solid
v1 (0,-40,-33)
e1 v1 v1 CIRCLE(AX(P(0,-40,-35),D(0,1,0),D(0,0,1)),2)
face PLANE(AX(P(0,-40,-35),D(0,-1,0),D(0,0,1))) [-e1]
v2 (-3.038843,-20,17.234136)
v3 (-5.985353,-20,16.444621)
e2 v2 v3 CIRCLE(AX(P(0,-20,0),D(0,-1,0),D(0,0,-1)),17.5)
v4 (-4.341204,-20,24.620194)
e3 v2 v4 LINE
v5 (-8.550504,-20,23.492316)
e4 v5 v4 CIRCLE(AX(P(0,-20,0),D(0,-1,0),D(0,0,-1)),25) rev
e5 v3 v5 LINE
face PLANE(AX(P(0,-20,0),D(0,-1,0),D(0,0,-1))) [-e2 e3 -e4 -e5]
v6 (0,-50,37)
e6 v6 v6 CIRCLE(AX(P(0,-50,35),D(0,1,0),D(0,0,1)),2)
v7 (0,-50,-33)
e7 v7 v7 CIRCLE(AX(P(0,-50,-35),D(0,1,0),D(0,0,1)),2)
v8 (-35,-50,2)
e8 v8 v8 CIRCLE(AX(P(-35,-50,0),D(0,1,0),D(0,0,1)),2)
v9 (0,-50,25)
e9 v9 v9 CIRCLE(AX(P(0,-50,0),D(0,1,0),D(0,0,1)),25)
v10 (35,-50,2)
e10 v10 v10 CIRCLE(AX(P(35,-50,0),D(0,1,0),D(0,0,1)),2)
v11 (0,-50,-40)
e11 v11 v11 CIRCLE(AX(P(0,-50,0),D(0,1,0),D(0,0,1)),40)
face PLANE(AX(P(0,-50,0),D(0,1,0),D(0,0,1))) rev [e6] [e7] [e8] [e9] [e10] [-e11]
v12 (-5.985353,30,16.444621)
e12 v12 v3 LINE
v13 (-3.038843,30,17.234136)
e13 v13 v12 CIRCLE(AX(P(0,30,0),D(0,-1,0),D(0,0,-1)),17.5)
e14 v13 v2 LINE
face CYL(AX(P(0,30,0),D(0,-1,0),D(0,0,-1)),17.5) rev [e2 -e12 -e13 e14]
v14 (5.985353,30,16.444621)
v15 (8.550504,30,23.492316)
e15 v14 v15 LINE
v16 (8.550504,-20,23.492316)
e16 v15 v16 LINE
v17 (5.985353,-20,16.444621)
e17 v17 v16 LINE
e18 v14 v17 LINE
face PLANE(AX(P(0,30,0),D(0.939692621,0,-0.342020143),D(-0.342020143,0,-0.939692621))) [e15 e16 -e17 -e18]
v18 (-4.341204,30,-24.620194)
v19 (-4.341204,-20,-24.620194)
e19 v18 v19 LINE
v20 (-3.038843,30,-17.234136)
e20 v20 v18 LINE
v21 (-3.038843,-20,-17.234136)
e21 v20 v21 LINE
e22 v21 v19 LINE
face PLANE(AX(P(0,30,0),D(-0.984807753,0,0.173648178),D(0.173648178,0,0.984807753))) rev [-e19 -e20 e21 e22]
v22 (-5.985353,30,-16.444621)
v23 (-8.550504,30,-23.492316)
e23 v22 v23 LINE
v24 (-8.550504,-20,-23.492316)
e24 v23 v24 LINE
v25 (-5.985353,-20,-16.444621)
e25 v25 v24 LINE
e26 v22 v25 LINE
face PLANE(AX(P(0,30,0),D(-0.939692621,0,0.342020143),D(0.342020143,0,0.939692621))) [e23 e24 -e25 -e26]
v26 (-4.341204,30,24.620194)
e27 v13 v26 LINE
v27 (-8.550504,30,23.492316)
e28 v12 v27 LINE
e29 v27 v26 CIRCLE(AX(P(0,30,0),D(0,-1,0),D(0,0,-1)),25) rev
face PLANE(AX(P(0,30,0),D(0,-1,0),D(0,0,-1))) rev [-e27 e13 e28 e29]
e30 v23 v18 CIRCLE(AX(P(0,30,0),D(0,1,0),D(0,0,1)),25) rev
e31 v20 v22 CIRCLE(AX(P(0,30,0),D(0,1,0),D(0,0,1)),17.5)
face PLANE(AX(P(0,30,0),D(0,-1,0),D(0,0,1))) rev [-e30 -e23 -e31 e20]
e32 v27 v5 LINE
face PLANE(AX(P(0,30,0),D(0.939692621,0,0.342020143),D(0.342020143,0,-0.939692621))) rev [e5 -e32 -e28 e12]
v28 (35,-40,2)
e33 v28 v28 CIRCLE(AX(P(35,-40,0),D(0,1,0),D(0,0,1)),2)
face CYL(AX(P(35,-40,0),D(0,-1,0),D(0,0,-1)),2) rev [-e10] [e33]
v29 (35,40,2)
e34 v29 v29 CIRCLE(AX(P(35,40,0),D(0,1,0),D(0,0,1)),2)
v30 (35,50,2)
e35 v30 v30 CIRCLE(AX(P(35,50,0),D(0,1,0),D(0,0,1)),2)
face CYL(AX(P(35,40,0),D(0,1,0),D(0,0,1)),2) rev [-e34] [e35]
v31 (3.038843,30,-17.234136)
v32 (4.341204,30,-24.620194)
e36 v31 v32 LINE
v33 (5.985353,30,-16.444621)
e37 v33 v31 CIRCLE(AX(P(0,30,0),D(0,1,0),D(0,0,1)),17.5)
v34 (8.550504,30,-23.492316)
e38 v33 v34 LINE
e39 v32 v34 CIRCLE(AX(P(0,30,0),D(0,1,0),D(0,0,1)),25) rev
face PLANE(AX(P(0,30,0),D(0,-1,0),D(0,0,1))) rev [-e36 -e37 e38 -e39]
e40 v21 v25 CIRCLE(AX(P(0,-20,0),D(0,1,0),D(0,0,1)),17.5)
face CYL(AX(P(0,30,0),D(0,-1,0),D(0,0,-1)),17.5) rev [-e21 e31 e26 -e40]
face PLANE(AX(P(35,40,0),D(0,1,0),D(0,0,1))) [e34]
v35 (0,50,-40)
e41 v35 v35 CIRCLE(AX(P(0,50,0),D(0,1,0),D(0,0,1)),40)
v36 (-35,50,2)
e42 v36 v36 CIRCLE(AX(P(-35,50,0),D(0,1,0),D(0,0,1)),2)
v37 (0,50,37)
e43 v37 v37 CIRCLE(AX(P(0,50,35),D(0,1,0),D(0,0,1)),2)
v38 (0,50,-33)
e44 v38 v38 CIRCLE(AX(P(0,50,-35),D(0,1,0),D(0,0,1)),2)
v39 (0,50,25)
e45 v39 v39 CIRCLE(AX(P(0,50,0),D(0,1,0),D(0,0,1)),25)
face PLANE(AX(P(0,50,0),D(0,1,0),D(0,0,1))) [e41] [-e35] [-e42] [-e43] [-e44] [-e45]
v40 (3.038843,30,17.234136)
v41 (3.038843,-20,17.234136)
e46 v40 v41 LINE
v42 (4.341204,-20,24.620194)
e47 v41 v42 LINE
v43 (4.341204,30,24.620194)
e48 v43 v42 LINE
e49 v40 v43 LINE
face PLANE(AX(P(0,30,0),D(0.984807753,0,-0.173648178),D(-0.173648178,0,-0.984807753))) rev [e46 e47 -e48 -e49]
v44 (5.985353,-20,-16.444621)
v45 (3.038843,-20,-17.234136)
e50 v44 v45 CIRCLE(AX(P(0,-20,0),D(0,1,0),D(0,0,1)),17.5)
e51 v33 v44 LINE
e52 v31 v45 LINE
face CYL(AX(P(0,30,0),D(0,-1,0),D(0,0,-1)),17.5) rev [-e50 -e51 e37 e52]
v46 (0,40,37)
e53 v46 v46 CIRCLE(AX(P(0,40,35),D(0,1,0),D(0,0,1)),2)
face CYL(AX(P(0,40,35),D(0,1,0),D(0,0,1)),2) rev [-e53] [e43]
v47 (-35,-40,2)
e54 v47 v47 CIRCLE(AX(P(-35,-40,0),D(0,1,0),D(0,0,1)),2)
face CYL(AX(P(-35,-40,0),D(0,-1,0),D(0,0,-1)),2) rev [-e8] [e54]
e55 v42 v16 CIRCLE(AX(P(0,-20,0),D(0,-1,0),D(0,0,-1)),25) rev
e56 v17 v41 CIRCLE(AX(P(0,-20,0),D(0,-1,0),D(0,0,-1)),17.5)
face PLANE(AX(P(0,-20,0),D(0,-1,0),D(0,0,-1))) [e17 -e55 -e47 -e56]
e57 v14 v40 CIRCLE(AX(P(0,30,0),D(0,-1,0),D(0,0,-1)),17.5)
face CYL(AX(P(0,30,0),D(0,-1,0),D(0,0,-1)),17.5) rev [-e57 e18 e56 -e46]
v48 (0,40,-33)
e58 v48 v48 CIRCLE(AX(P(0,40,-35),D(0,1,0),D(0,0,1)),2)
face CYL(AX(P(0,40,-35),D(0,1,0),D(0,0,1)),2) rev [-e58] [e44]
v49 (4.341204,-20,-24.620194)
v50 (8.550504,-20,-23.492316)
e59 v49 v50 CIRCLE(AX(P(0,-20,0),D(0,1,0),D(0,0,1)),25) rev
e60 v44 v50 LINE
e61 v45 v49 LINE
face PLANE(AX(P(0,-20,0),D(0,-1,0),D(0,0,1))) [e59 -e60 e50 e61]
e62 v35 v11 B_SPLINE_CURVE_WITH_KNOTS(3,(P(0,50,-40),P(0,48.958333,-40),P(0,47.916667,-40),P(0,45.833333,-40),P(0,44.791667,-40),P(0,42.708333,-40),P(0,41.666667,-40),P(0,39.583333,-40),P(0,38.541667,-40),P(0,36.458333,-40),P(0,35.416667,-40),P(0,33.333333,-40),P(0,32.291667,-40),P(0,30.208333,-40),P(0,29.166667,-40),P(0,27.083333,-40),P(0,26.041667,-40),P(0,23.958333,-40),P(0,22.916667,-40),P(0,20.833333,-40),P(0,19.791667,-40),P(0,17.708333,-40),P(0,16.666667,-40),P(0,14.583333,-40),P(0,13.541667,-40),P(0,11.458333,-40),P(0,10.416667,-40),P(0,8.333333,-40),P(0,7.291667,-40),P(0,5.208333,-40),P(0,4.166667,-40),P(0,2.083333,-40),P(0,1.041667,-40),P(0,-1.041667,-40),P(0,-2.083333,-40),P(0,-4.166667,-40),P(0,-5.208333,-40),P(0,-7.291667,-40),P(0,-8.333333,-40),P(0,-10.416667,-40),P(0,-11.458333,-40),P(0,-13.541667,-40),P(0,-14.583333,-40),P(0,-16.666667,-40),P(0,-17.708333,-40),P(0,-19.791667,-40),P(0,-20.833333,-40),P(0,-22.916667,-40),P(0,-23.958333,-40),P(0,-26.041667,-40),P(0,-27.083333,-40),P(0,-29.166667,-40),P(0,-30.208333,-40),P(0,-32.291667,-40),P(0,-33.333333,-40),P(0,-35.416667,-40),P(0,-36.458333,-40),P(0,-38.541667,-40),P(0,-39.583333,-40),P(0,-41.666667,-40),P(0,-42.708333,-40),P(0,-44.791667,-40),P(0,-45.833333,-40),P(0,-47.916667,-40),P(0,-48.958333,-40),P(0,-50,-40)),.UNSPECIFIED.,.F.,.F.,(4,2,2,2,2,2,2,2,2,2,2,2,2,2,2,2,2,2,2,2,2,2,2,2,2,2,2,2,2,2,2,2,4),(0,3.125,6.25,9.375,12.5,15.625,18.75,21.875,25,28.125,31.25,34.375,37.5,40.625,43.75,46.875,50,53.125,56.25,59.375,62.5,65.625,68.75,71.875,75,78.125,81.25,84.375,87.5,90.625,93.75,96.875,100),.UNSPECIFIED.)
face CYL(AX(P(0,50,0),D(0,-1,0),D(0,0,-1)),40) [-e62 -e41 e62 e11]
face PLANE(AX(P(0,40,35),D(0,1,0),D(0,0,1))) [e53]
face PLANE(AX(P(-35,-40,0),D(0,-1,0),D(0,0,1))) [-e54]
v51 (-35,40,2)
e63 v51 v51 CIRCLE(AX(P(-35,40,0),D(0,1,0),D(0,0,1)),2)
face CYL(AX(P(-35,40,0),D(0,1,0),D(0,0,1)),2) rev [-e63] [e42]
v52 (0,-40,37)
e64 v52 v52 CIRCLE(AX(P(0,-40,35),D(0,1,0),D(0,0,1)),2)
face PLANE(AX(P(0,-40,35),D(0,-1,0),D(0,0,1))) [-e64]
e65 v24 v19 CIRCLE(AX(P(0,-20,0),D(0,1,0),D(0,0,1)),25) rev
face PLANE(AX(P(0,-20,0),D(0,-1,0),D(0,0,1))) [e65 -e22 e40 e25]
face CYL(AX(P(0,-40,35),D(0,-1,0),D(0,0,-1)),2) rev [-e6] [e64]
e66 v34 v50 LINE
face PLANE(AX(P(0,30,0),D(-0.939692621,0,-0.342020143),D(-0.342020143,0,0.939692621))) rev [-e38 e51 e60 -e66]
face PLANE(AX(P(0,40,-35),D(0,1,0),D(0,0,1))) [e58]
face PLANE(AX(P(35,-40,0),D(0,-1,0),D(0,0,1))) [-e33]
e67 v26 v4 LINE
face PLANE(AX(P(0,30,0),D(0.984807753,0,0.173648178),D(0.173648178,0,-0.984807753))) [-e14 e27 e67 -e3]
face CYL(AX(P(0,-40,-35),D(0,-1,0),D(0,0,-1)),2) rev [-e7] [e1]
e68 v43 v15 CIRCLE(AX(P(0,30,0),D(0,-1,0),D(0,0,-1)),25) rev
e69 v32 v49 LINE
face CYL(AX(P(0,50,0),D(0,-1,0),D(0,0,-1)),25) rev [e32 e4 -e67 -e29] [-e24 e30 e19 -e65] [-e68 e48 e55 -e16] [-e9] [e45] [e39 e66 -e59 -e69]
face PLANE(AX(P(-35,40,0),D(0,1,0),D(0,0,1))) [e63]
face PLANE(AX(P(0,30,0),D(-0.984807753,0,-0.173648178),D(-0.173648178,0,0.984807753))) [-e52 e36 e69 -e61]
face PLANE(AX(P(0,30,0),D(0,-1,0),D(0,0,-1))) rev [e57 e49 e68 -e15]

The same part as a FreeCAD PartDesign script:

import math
import FreeCAD as App
import Part
import Sketcher

V = App.Vector
Q = App.Units.Quantity

doc = App.newDocument("Part")
body = doc.addObject("PartDesign::Body", "Body")

sketch1 = doc.addObject("Sketcher::SketchObject", "Sketch")
body.addObject(sketch1)
sketch1.AttachmentSupport = (doc.XZ_Plane, [""])
sketch1.MapMode = "FlatFace"
sketch1.addGeometry([
    Part.Circle(V(0, 0, 0), V(0, 0, 1), 40),
    Part.Circle(V(0, 0, 0), V(0, 0, 1), 25),
], False)
sketch1.addConstraint([
    Sketcher.Constraint("Coincident", 0, 3, -1, 1),
    Sketcher.Constraint("Coincident", 1, 3, -1, 1),
    Sketcher.Constraint("Diameter", 0, Q("80 mm")),
    Sketcher.Constraint("Diameter", 1, Q("50 mm")),
])
pad1 = doc.addObject("PartDesign::Pad", "Pad")
body.addObject(pad1)
pad1.Profile = sketch1
pad1.Length = 100
pad1.Midplane = True

sketch2 = doc.addObject("Sketcher::SketchObject", "Sketch001")
body.addObject(sketch2)
sketch2.AttachmentSupport = (doc.XZ_Plane, [""])
sketch2.MapMode = "FlatFace"
sketch2.AttachmentOffset = App.Placement(V(0, 0, -50), App.Rotation())
sketch2.addGeometry([
    Part.Circle(V(0, -35, 0), V(0, 0, 1), 2),
    Part.Circle(V(35, 0, 0), V(0, 0, 1), 2),
    Part.Circle(V(0, 35, 0), V(0, 0, 1), 2),
    Part.Circle(V(-35, 0, 0), V(0, 0, 1), 2),
], False)
sketch2.addConstraint([
    Sketcher.Constraint("Equal", 0, 1),
    Sketcher.Constraint("Equal", 1, 2),
    Sketcher.Constraint("Equal", 2, 3),
    Sketcher.Constraint("Symmetric", 0, 3, 2, 3, -1, 1),
    Sketcher.Constraint("Symmetric", 1, 3, 3, 3, -1, 1),
    Sketcher.Constraint("PointOnObject", 0, 3, -2),
    Sketcher.Constraint("PointOnObject", 1, 3, -1),
    Sketcher.Constraint("Diameter", 0, Q("4 mm")),
    Sketcher.Constraint("DistanceY", 0, 3, -1, 1, Q("35 mm")),
    Sketcher.Constraint("DistanceX", -1, 1, 1, 3, Q("35 mm")),
])
pocket1 = doc.addObject("PartDesign::Pocket", "Pocket")
body.addObject(pocket1)
pocket1.Profile = sketch2
pocket1.Length = 10
pocket1.Reversed = True
doc.recompute()

mirrored = doc.addObject("PartDesign::Mirrored", "Mirrored")
body.addObject(mirrored)
mirrored.Originals = [pocket1]
mirrored.MirrorPlane = (doc.XZ_Plane, [""])
body.Tip = mirrored

sketch3 = doc.addObject("Sketcher::SketchObject", "Sketch002")
body.addObject(sketch3)
sketch3.AttachmentSupport = (doc.XZ_Plane, [""])
sketch3.MapMode = "FlatFace"
sketch3.AttachmentOffset = App.Placement(V(0, 0, 20), App.Rotation())
sketch3.addGeometry([
    Part.ArcOfCircle(Part.Circle(V(0, 0, 0), V(0, 0, 1), 17.5), math.radians(100), math.radians(110)),
    Part.LineSegment(V(-3, 17.2, 0), V(-4.3, 24.6, 0)),
    Part.ArcOfCircle(Part.Circle(V(0, 0, 0), V(0, 0, 1), 25), math.radians(100), math.radians(110)),
    Part.LineSegment(V(-8.6, 23.5, 0), V(-6, 16.4, 0)),
    Part.LineSegment(V(4.3, 24.6, 0), V(3, 17.2, 0)),
    Part.ArcOfCircle(Part.Circle(V(0, 0, 0), V(0, 0, 1), 17.5), math.radians(70), math.radians(80)),
    Part.LineSegment(V(6, 16.4, 0), V(8.6, 23.5, 0)),
    Part.ArcOfCircle(Part.Circle(V(0, 0, 0), V(0, 0, 1), 25), math.radians(70), math.radians(80)),
], False)
sketch3.addConstraint([
    Sketcher.Constraint("Coincident", 0, 1, 1, 1),
    Sketcher.Constraint("Coincident", 1, 2, 2, 1),
    Sketcher.Constraint("Coincident", 2, 2, 3, 1),
    Sketcher.Constraint("Coincident", 3, 2, 0, 2),
    Sketcher.Constraint("Coincident", 4, 2, 5, 2),
    Sketcher.Constraint("Coincident", 5, 1, 6, 1),
    Sketcher.Constraint("Coincident", 6, 2, 7, 1),
    Sketcher.Constraint("Coincident", 7, 2, 4, 1),
    Sketcher.Constraint("Coincident", 0, 3, -1, 1),
    Sketcher.Constraint("Coincident", 2, 3, -1, 1),
    Sketcher.Constraint("Coincident", 5, 3, -1, 1),
    Sketcher.Constraint("Coincident", 7, 3, -1, 1),
    Sketcher.Constraint("Equal", 0, 5),
    Sketcher.Constraint("Equal", 2, 7),
    Sketcher.Constraint("Horizontal", 0, 1, 4, 2),
    Sketcher.Constraint("Horizontal", 3, 2, 5, 1),
    Sketcher.Constraint("Horizontal", 2, 2, 6, 2),
    Sketcher.Constraint("Horizontal", 1, 2, 7, 2),
    Sketcher.Constraint("Radius", 2, Q("25 mm")),
    Sketcher.Constraint("Radius", 0, Q("17.5 mm")),
    Sketcher.Constraint("Angle", 1, Q("100 deg")),
    Sketcher.Constraint("Angle", 3, Q("-70 deg")),
    Sketcher.Constraint("DistanceX", 2, 2, 1, 2, Q("4.209299 mm")),
    Sketcher.Constraint("DistanceY", -1, 1, 3, 2, Q("16.444621 mm")),
])
pad2 = doc.addObject("PartDesign::Pad", "Pad001")
body.addObject(pad2)
pad2.Profile = sketch3
pad2.Length = 50
pad2.Reversed = True
doc.recompute()

mirrored2 = doc.addObject("PartDesign::Mirrored", "Mirrored001")
body.addObject(mirrored2)
mirrored2.Originals = [pad2]
mirrored2.MirrorPlane = (doc.XY_Plane, [""])
body.Tip = mirrored2

doc.recompute()
